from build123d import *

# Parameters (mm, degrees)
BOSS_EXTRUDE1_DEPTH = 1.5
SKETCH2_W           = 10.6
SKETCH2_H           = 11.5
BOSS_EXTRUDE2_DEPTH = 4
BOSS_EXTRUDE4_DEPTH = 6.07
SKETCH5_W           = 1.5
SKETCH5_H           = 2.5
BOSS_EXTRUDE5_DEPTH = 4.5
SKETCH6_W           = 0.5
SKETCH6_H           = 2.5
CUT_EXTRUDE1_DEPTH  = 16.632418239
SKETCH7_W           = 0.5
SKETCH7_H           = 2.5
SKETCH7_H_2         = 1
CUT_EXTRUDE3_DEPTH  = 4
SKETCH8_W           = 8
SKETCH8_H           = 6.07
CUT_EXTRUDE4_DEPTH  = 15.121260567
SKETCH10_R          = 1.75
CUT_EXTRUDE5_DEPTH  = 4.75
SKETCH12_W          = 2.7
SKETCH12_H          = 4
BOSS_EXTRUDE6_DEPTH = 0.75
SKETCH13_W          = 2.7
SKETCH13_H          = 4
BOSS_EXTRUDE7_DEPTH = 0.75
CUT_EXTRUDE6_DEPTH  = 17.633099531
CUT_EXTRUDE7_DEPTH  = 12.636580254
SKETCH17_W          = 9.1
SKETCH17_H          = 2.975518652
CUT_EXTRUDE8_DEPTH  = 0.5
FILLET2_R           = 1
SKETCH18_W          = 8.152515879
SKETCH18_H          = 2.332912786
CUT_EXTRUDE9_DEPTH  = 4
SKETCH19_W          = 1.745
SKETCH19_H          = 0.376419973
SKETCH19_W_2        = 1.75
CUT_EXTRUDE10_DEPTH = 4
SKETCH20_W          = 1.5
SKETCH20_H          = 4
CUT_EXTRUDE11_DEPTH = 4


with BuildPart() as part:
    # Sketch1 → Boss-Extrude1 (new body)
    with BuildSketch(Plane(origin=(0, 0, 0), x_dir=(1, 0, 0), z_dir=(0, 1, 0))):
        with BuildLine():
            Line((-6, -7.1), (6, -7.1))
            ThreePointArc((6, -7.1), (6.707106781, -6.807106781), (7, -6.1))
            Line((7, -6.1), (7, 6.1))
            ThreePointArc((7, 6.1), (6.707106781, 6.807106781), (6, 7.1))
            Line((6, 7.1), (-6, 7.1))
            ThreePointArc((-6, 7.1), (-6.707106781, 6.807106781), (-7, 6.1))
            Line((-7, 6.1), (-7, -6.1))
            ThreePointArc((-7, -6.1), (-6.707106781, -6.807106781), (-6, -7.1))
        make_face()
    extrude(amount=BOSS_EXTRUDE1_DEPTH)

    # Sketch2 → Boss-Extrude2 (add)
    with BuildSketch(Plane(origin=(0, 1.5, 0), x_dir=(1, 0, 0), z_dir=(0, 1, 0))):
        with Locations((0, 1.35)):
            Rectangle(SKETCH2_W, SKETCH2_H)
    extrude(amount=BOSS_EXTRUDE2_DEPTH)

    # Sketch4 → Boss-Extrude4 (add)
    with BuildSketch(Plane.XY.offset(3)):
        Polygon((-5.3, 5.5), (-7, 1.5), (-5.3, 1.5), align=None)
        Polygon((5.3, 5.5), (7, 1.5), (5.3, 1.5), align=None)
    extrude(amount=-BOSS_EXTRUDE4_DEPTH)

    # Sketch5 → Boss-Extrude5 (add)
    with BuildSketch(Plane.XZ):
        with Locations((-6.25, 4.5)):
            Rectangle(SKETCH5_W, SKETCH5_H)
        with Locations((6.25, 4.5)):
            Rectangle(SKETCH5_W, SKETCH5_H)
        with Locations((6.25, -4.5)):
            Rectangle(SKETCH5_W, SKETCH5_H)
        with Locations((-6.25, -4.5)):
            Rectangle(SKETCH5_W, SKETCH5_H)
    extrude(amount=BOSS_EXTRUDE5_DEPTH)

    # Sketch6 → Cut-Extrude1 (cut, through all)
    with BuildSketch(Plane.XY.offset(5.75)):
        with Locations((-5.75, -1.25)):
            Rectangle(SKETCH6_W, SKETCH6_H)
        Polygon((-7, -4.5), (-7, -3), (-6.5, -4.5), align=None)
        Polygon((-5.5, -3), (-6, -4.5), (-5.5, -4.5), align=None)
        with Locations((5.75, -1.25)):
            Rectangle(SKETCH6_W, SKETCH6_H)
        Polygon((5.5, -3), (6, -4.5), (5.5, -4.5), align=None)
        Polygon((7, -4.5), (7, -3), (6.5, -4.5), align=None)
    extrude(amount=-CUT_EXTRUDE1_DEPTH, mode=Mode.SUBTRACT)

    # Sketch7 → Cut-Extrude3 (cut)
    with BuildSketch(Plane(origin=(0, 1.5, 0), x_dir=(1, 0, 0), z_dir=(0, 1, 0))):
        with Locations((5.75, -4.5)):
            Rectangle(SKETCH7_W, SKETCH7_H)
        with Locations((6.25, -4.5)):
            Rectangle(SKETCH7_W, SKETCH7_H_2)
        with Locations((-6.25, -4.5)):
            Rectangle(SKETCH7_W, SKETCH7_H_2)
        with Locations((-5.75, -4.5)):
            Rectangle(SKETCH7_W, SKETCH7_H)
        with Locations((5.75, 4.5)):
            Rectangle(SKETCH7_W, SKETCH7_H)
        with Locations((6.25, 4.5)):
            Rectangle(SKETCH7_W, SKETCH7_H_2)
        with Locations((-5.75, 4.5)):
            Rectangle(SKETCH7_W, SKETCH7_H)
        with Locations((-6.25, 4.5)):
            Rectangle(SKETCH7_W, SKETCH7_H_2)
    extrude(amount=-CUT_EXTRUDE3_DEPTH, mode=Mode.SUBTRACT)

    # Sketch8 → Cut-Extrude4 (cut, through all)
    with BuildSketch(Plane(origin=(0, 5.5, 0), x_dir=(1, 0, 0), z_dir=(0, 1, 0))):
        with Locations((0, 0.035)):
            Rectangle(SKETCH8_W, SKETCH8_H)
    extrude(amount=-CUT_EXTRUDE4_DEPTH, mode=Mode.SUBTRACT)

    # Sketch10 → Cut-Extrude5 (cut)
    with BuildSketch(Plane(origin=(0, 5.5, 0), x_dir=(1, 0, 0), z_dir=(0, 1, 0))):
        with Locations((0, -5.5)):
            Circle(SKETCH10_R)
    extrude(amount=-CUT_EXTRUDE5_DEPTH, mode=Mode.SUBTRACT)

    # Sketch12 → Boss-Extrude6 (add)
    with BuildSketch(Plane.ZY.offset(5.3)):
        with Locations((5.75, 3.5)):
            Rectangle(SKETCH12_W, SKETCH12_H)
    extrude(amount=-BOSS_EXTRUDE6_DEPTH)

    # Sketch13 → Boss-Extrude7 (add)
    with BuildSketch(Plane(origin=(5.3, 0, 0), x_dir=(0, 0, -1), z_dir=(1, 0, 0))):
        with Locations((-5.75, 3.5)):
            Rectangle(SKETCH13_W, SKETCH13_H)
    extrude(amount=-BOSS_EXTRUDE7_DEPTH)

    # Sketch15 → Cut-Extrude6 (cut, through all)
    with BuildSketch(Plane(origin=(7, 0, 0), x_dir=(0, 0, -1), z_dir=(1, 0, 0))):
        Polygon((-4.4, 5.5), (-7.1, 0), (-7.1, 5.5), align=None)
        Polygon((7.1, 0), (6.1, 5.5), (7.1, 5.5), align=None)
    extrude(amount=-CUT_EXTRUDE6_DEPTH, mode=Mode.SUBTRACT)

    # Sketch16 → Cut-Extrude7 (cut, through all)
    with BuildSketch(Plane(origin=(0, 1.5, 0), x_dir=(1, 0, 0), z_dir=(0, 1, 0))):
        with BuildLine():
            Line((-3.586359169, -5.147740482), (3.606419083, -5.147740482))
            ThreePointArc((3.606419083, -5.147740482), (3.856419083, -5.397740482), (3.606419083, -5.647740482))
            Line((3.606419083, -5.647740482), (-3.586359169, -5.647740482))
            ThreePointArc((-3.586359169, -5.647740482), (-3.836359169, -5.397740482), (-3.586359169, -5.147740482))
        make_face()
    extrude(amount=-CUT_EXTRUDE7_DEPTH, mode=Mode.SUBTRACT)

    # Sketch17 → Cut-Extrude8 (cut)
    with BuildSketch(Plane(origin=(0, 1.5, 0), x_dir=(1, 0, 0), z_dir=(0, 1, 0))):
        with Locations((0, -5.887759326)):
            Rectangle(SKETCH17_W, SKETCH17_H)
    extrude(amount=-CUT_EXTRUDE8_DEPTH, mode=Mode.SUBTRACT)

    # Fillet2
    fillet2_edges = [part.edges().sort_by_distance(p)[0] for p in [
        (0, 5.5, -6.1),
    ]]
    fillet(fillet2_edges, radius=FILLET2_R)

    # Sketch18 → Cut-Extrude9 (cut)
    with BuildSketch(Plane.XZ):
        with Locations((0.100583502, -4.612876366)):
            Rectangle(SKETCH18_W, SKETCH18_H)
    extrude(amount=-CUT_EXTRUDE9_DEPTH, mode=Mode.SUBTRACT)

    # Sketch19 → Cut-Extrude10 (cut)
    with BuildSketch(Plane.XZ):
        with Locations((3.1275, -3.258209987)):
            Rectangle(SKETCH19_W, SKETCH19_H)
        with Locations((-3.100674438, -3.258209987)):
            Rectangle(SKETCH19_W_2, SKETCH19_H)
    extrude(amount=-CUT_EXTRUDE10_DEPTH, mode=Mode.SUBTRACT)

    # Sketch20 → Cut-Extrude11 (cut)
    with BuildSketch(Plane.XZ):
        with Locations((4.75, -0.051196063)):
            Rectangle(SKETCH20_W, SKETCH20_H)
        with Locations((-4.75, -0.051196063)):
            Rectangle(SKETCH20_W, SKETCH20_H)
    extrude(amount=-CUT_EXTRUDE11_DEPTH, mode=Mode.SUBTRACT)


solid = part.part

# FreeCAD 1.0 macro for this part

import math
import FreeCAD as App
import Part
import Sketcher
from FreeCAD import Vector
Q = App.Units.Quantity


def edges_at(feature, points):
    """Names of the edges that pass closest to the given points."""
    edges = feature.Shape.Edges
    near = lambda p: min(range(len(edges)), key=lambda i: edges[i].distToShape(Part.Vertex(*p))[0])
    return sorted({f"Edge{near(p) + 1}" for p in points})

doc = App.newDocument("Part")
params = doc.addObject("Spreadsheet::Sheet", "Params")
for row, (alias, value) in enumerate([
    ("sketch1_radius", "1 mm"),
    ("sketch1_width", "12 mm"),
    ("sketch1_height", "12.2 mm"),
    ("pad1_length", "1.5 mm"),
    ("sketch2_width", "10.6 mm"),
    ("sketch2_height", "11.5 mm"),
    ("pad2_length", "4 mm"),
    ("sketch3_height", "4 mm"),
    ("sketch3_width", "1.7 mm"),
    ("pad3_length", "6.07 mm"),
    ("sketch4_width", "1.5 mm"),
    ("sketch4_height", "2.5 mm"),
    ("pad4_length", "4.5 mm"),
    ("sketch5_width", "0.5 mm"),
    ("sketch5_height", "2.5 mm"),
    ("sketch5_height2", "1.5 mm"),
    ("sketch6_height", "1 mm"),
    ("sketch6_width", "0.5 mm"),
    ("sketch6_height2", "2.5 mm"),
    ("pocket2_length", "4 mm"),
    ("sketch7_width", "8 mm"),
    ("sketch7_height", "6.07 mm"),
    ("sketch8_diameter", "3.5 mm"),
    ("pocket4_length", "4.75 mm"),
    ("sketch9_width", "4 mm"),
    ("sketch9_height", "2.7 mm"),
    ("pad5_length", "0.75 mm"),
    ("sketch10_width", "4 mm"),
    ("sketch10_height", "2.7 mm"),
    ("pad6_length", "0.75 mm"),
    ("sketch11_height", "1 mm"),
    ("sketch11_width", "5.5 mm"),
    ("sketch11_height2", "2.7 mm"),
    ("sketch12_radius", "0.25 mm"),
    ("sketch13_width", "9.1 mm"),
    ("pocket7_length", "0.5 mm"),
    ("fillet_radius", "1 mm"),
    ("pocket8_length", "4 mm"),
    ("sketch15_width", "1.75 mm"),
    ("pocket9_length", "4 mm"),
    ("sketch16_height", "4 mm"),
    ("sketch16_width", "1.5 mm"),
    ("pocket10_length", "4 mm"),
], start=1):
    params.set(f"A{row}", alias)
    params.set(f"B{row}", "=" + value)
    params.setAlias(f"B{row}", alias)

body = doc.addObject("PartDesign::Body", "Body")

sketch1 = body.newObject("Sketcher::SketchObject", "Sketch")
sketch1.AttachmentSupport = (doc.getObject("XZ_Plane"), [""])
sketch1.MapMode = "FlatFace"
sketch1.addGeometry([
    Part.LineSegment(Vector(-6, 7.1, 0), Vector(6, 7.1, 0)),
    Part.ArcOfCircle(Part.Circle(Vector(6, 6.1, 0), Vector(0, 0, 1), 1), math.radians(0), math.radians(90)),
    Part.LineSegment(Vector(7, 6.1, 0), Vector(7, -6.1, 0)),
    Part.ArcOfCircle(Part.Circle(Vector(6, -6.1, 0), Vector(0, 0, 1), 1), math.radians(-90), math.radians(0)),
    Part.LineSegment(Vector(6, -7.1, 0), Vector(-6, -7.1, 0)),
    Part.ArcOfCircle(Part.Circle(Vector(-6, -6.1, 0), Vector(0, 0, 1), 1), math.radians(-180), math.radians(-90)),
    Part.LineSegment(Vector(-7, -6.1, 0), Vector(-7, 6.1, 0)),
    Part.ArcOfCircle(Part.Circle(Vector(-6, 6.1, 0), Vector(0, 0, 1), 1), math.radians(90), math.radians(180)),
], False)
sketch1.addConstraint([
    Sketcher.Constraint("Tangent", 0, 2, 1, 2),
    Sketcher.Constraint("Tangent", 1, 1, 2, 1),
    Sketcher.Constraint("Tangent", 2, 2, 3, 2),
    Sketcher.Constraint("Tangent", 3, 1, 4, 1),
    Sketcher.Constraint("Tangent", 4, 2, 5, 2),
    Sketcher.Constraint("Tangent", 5, 1, 6, 1),
    Sketcher.Constraint("Tangent", 6, 2, 7, 2),
    Sketcher.Constraint("Tangent", 7, 1, 0, 1),
    Sketcher.Constraint("Horizontal", 0),
    Sketcher.Constraint("Vertical", 2),
    Sketcher.Constraint("Horizontal", 4),
    Sketcher.Constraint("Vertical", 6),
    Sketcher.Constraint("Equal", 1, 3),
    Sketcher.Constraint("Equal", 3, 5),
    Sketcher.Constraint("Equal", 5, 7),
    Sketcher.Constraint("Symmetric", 1, 3, 5, 3, -1, 1),
    Sketcher.Constraint("Radius", 1, Q("1 mm")),
    Sketcher.Constraint("DistanceX", 0, 1, 0, 2, Q("12 mm")),
    Sketcher.Constraint("DistanceY", 2, 2, 2, 1, Q("12.2 mm")),
])
sketch1.setExpression("Constraints[16]", "Params.sketch1_radius")
sketch1.setExpression("Constraints[17]", "Params.sketch1_width")
sketch1.setExpression("Constraints[18]", "Params.sketch1_height")
pad1 = body.newObject("PartDesign::Pad", "Pad")
pad1.Profile = sketch1
pad1.setExpression("Length", "Params.pad1_length")
pad1.Reversed = True

sketch2 = body.newObject("Sketcher::SketchObject", "Sketch001")
sketch2.AttachmentSupport = (doc.getObject("XZ_Plane"), [""])
sketch2.MapMode = "FlatFace"
sketch2.AttachmentOffset = App.Placement(Vector(0, 0, -1.5), App.Rotation())
sketch2.addGeometry([
    Part.LineSegment(Vector(-5, -7, 0), Vector(-5, 4, 0)),
    Part.LineSegment(Vector(-5, 4, 0), Vector(5, 4, 0)),
    Part.LineSegment(Vector(5, 4, 0), Vector(5, -7, 0)),
    Part.LineSegment(Vector(5, -7, 0), Vector(-5, -7, 0)),
], False)
sketch2.addConstraint([
    Sketcher.Constraint("Coincident", 0, 2, 1, 1),
    Sketcher.Constraint("Coincident", 1, 2, 2, 1),
    Sketcher.Constraint("Coincident", 2, 2, 3, 1),
    Sketcher.Constraint("Coincident", 3, 2, 0, 1),
    Sketcher.Constraint("Vertical", 0),
    Sketcher.Constraint("Horizontal", 1),
    Sketcher.Constraint("Vertical", 2),
    Sketcher.Constraint("Horizontal", 3),
    Sketcher.Constraint("DistanceX", 1, 1, 1, 2, Q("10.6 mm")),
    Sketcher.Constraint("DistanceY", 0, 1, 0, 2, Q("11.5 mm")),
    Sketcher.Constraint("DistanceX", 0, 2, -1, 1, Q("5.3 mm")),
    Sketcher.Constraint("DistanceY", -1, 1, 0, 2, Q("4.4 mm")),
])
sketch2.setExpression("Constraints[8]", "Params.sketch2_width")
sketch2.setExpression("Constraints[9]", "Params.sketch2_height")
pad2 = body.newObject("PartDesign::Pad", "Pad001")
pad2.Profile = sketch2
pad2.setExpression("Length", "Params.pad2_length")
pad2.Reversed = True

sketch3 = body.newObject("Sketcher::SketchObject", "Sketch002")
sketch3.AttachmentSupport = (doc.getObject("XY_Plane"), [""])
sketch3.MapMode = "FlatFace"
sketch3.AttachmentOffset = App.Placement(Vector(0, 0, 3), App.Rotation())
sketch3.addGeometry([
    Part.LineSegment(Vector(-5.3, 5.5, 0), Vector(-7, 1.5, 0)),
    Part.LineSegment(Vector(-7, 1.5, 0), Vector(-5.3, 1.5, 0)),
    Part.LineSegment(Vector(-5.3, 1.5, 0), Vector(-5.3, 5.5, 0)),
    Part.LineSegment(Vector(7, 1.5, 0), Vector(5.3, 5.5, 0)),
    Part.LineSegment(Vector(5.3, 5.5, 0), Vector(5.3, 1.5, 0)),
    Part.LineSegment(Vector(5.3, 1.5, 0), Vector(7, 1.5, 0)),
], False)
sketch3.addConstraint([
    Sketcher.Constraint("Coincident", 0, 2, 1, 1),
    Sketcher.Constraint("Coincident", 1, 2, 2, 1),
    Sketcher.Constraint("Coincident", 2, 2, 0, 1),
    Sketcher.Constraint("Coincident", 3, 2, 4, 1),
    Sketcher.Constraint("Coincident", 4, 2, 5, 1),
    Sketcher.Constraint("Coincident", 5, 2, 3, 1),
    Sketcher.Constraint("Horizontal", 1),
    Sketcher.Constraint("Vertical", 2),
    Sketcher.Constraint("Vertical", 4),
    Sketcher.Constraint("Horizontal", 5),
    Sketcher.Constraint("Symmetric", 2, 2, 3, 2, -2),
    Sketcher.Constraint("Symmetric", 0, 2, 5, 2, -2),
    Sketcher.Constraint("DistanceY", 2, 1, 2, 2, Q("4 mm")),
    Sketcher.Constraint("DistanceX", 1, 1, 1, 2, Q("1.7 mm")),
    Sketcher.Constraint("DistanceX", 0, 2, -1, 1, Q("7 mm")),
    Sketcher.Constraint("DistanceY", -1, 1, 0, 2, Q("1.5 mm")),
])
sketch3.setExpression("Constraints[12]", "Params.sketch3_height")
sketch3.setExpression("Constraints[13]", "Params.sketch3_width")
pad3 = body.newObject("PartDesign::Pad", "Pad002")
pad3.Profile = sketch3
pad3.setExpression("Length", "Params.pad3_length")
pad3.Reversed = True

sketch4 = body.newObject("Sketcher::SketchObject", "Sketch003")
sketch4.AttachmentSupport = (doc.getObject("XZ_Plane"), [""])
sketch4.MapMode = "FlatFace"
sketch4.addGeometry([
    Part.LineSegment(Vector(-7, 5.8, 0), Vector(-7, 3.2, 0)),
    Part.LineSegment(Vector(-7, 3.2, 0), Vector(-5.5, 3.2, 0)),
    Part.LineSegment(Vector(-5.5, 3.2, 0), Vector(-5.5, 5.8, 0)),
    Part.LineSegment(Vector(-5.5, 5.8, 0), Vector(-7, 5.8, 0)),
    Part.LineSegment(Vector(5.5, 5.8, 0), Vector(5.5, 3.2, 0)),
    Part.LineSegment(Vector(5.5, 3.2, 0), Vector(7, 3.2, 0)),
    Part.LineSegment(Vector(7, 3.2, 0), Vector(7, 5.8, 0)),
    Part.LineSegment(Vector(7, 5.8, 0), Vector(5.5, 5.8, 0)),
    Part.LineSegment(Vector(5.5, -3.2, 0), Vector(5.5, -5.8, 0)),
    Part.LineSegment(Vector(5.5, -5.8, 0), Vector(7, -5.8, 0)),
    Part.LineSegment(Vector(7, -5.8, 0), Vector(7, -3.2, 0)),
    Part.LineSegment(Vector(7, -3.2, 0), Vector(5.5, -3.2, 0)),
    Part.LineSegment(Vector(-7, -3.2, 0), Vector(-7, -5.8, 0)),
    Part.LineSegment(Vector(-7, -5.8, 0), Vector(-5.5, -5.8, 0)),
    Part.LineSegment(Vector(-5.5, -5.8, 0), Vector(-5.5, -3.2, 0)),
    Part.LineSegment(Vector(-5.5, -3.2, 0), Vector(-7, -3.2, 0)),
], False)
sketch4.addConstraint([
    Sketcher.Constraint("Coincident", 0, 2, 1, 1),
    Sketcher.Constraint("Coincident", 1, 2, 2, 1),
    Sketcher.Constraint("Coincident", 2, 2, 3, 1),
    Sketcher.Constraint("Coincident", 3, 2, 0, 1),
    Sketcher.Constraint("Coincident", 4, 2, 5, 1),
    Sketcher.Constraint("Coincident", 5, 2, 6, 1),
    Sketcher.Constraint("Coincident", 6, 2, 7, 1),
    Sketcher.Constraint("Coincident", 7, 2, 4, 1),
    Sketcher.Constraint("Coincident", 8, 2, 9, 1),
    Sketcher.Constraint("Coincident", 9, 2, 10, 1),
    Sketcher.Constraint("Coincident", 10, 2, 11, 1),
    Sketcher.Constraint("Coincident", 11, 2, 8, 1),
    Sketcher.Constraint("Coincident", 12, 2, 13, 1),
    Sketcher.Constraint("Coincident", 13, 2, 14, 1),
    Sketcher.Constraint("Coincident", 14, 2, 15, 1),
    Sketcher.Constraint("Coincident", 15, 2, 12, 1),
    Sketcher.Constraint("Vertical", 0),
    Sketcher.Constraint("Horizontal", 1),
    Sketcher.Constraint("Vertical", 2),
    Sketcher.Constraint("Horizontal", 3),
    Sketcher.Constraint("Vertical", 4),
    Sketcher.Constraint("Horizontal", 5),
    Sketcher.Constraint("Vertical", 6),
    Sketcher.Constraint("Horizontal", 7),
    Sketcher.Constraint("Vertical", 8),
    Sketcher.Constraint("Horizontal", 9),
    Sketcher.Constraint("Vertical", 10),
    Sketcher.Constraint("Horizontal", 11),
    Sketcher.Constraint("Vertical", 12),
    Sketcher.Constraint("Horizontal", 13),
    Sketcher.Constraint("Vertical", 14),
    Sketcher.Constraint("Horizontal", 15),
    Sketcher.Constraint("Symmetric", 2, 2, 8, 2, -1, 1),
    Sketcher.Constraint("Symmetric", 0, 2, 10, 2, -1, 1),
    Sketcher.Constraint("Symmetric", 6, 2, 12, 2, -1, 1),
    Sketcher.Constraint("Symmetric", 4, 2, 14, 2, -1, 1),
    Sketcher.Constraint("Symmetric", 1, 2, 4, 2, -2),
    Sketcher.Constraint("Symmetric", 3, 2, 6, 2, -2),
    Sketcher.Constraint("DistanceX", 1, 1, 1, 2, Q("1.5 mm")),
    Sketcher.Constraint("DistanceY", 0, 2, 0, 1, Q("2.5 mm")),
    Sketcher.Constraint("DistanceX", 0, 2, -1, 1, Q("7 mm")),
    Sketcher.Constraint("DistanceY", 8, 2, 4, 2, Q("9 mm")),
])
sketch4.setExpression("Constraints[38]", "Params.sketch4_width")
sketch4.setExpression("Constraints[39]", "Params.sketch4_height")
pad4 = body.newObject("PartDesign::Pad", "Pad003")
pad4.Profile = sketch4
pad4.setExpression("Length", "Params.pad4_length")

sketch5 = body.newObject("Sketcher::SketchObject", "Sketch004")
sketch5.AttachmentSupport = (doc.getObject("XY_Plane"), [""])
sketch5.MapMode = "FlatFace"
sketch5.AttachmentOffset = App.Placement(Vector(0, 0, 5.75), App.Rotation())
sketch5.addGeometry([
    Part.LineSegment(Vector(-6, 0, 0), Vector(-6, -2.5, 0)),
    Part.LineSegment(Vector(-6, -2.5, 0), Vector(-5.5, -2.5, 0)),
    Part.LineSegment(Vector(-5.5, -2.5, 0), Vector(-5.5, 0, 0)),
    Part.LineSegment(Vector(-5.5, 0, 0), Vector(-6, 0, 0)),
    Part.LineSegment(Vector(-7, -3, 0), Vector(-7, -4.5, 0)),
    Part.LineSegment(Vector(-7, -4.5, 0), Vector(-6.5, -4.5, 0)),
    Part.LineSegment(Vector(-6.5, -4.5, 0), Vector(-7, -3, 0)),
    Part.LineSegment(Vector(-5.5, -3, 0), Vector(-6, -4.5, 0)),
    Part.LineSegment(Vector(-6, -4.5, 0), Vector(-5.5, -4.5, 0)),
    Part.LineSegment(Vector(-5.5, -4.5, 0), Vector(-5.5, -3, 0)),
    Part.LineSegment(Vector(5.5, 0, 0), Vector(5.5, -2.5, 0)),
    Part.LineSegment(Vector(5.5, -2.5, 0), Vector(6, -2.5, 0)),
    Part.LineSegment(Vector(6, -2.5, 0), Vector(6, 0, 0)),
    Part.LineSegment(Vector(6, 0, 0), Vector(5.5, 0, 0)),
    Part.LineSegment(Vector(6, -4.5, 0), Vector(5.5, -3, 0)),
    Part.LineSegment(Vector(5.5, -3, 0), Vector(5.5, -4.5, 0)),
    Part.LineSegment(Vector(5.5, -4.5, 0), Vector(6, -4.5, 0)),
    Part.LineSegment(Vector(7, -4.5, 0), Vector(7, -3, 0)),
    Part.LineSegment(Vector(7, -3, 0), Vector(6.5, -4.5, 0)),
    Part.LineSegment(Vector(6.5, -4.5, 0), Vector(7, -4.5, 0)),
], False)
sketch5.addConstraint([
    Sketcher.Constraint("Coincident", 0, 2, 1, 1),
    Sketcher.Constraint("Coincident", 1, 2, 2, 1),
    Sketcher.Constraint("Coincident", 2, 2, 3, 1),
    Sketcher.Constraint("Coincident", 3, 2, 0, 1),
    Sketcher.Constraint("Coincident", 4, 2, 5, 1),
    Sketcher.Constraint("Coincident", 5, 2, 6, 1),
    Sketcher.Constraint("Coincident", 6, 2, 4, 1),
    Sketcher.Constraint("Coincident", 7, 2, 8, 1),
    Sketcher.Constraint("Coincident", 8, 2, 9, 1),
    Sketcher.Constraint("Coincident", 9, 2, 7, 1),
    Sketcher.Constraint("Coincident", 10, 2, 11, 1),
    Sketcher.Constraint("Coincident", 11, 2, 12, 1),
    Sketcher.Constraint("Coincident", 12, 2, 13, 1),
    Sketcher.Constraint("Coincident", 13, 2, 10, 1),
    Sketcher.Constraint("Coincident", 14, 2, 15, 1),
    Sketcher.Constraint("Coincident", 15, 2, 16, 1),
    Sketcher.Constraint("Coincident", 16, 2, 14, 1),
    Sketcher.Constraint("Coincident", 17, 2, 18, 1),
    Sketcher.Constraint("Coincident", 18, 2, 19, 1),
    Sketcher.Constraint("Coincident", 19, 2, 17, 1),
    Sketcher.Constraint("Vertical", 0),
    Sketcher.Constraint("Horizontal", 1),
    Sketcher.Constraint("Vertical", 2),
    Sketcher.Constraint("Horizontal", 3),
    Sketcher.Constraint("Vertical", 4),
    Sketcher.Constraint("Horizontal", 5),
    Sketcher.Constraint("Horizontal", 8),
    Sketcher.Constraint("Vertical", 9),
    Sketcher.Constraint("Vertical", 10),
    Sketcher.Constraint("Horizontal", 11),
    Sketcher.Constraint("Vertical", 12),
    Sketcher.Constraint("Horizontal", 13),
    Sketcher.Constraint("Vertical", 15),
    Sketcher.Constraint("Horizontal", 16),
    Sketcher.Constraint("Vertical", 17),
    Sketcher.Constraint("Horizontal", 19),
    Sketcher.Constraint("Symmetric", 3, 2, 12, 2, -1, 1),
    Sketcher.Constraint("Symmetric", 1, 2, 10, 2, -2),
    Sketcher.Constraint("Symmetric", 9, 2, 14, 2, -2),
    Sketcher.Constraint("Symmetric", 7, 2, 16, 2, -2),
    Sketcher.Constraint("Symmetric", 6, 2, 17, 2, -2),
    Sketcher.Constraint("Symmetric", 5, 2, 18, 2, -2),
    Sketcher.Constraint("PointOnObject", 2, 2, -1),
    Sketcher.Constraint("Parallel", 6, 14),
    Sketcher.Constraint("Horizontal", 5, 2, 7, 2),
    Sketcher.Constraint("Horizontal", 6, 2, 9, 2),
    Sketcher.Constraint("Vertical", 3, 2, 7, 2),
    Sketcher.Constraint("Vertical", 2, 2, 8, 2),
    Sketcher.Constraint("DistanceX", 1, 1, 1, 2, Q("0.5 mm")),
    Sketcher.Constraint("DistanceY", 0, 2, 0, 1, Q("2.5 mm")),
    Sketcher.Constraint("DistanceY", 4, 2, 4, 1, Q("1.5 mm")),
    Sketcher.Constraint("DistanceX", 0, 2, -1, 1, Q("6 mm")),
    Sketcher.Constraint("DistanceX", 4, 2, -1, 1, Q("7 mm")),
    Sketcher.Constraint("DistanceY", 6, 2, -1, 1, Q("3 mm")),
])
sketch5.setExpression("Constraints[48]", "Params.sketch5_width")
sketch5.setExpression("Constraints[49]", "Params.sketch5_height")
sketch5.setExpression("Constraints[50]", "Params.sketch5_height2")
pocket1 = body.newObject("PartDesign::Pocket", "Pocket")
pocket1.Profile = sketch5
pocket1.Type = "ThroughAll"

sketch6 = body.newObject("Sketcher::SketchObject", "Sketch005")
sketch6.AttachmentSupport = (doc.getObject("XZ_Plane"), [""])
sketch6.MapMode = "FlatFace"
sketch6.AttachmentOffset = App.Placement(Vector(0, 0, -1.5), App.Rotation())
sketch6.addGeometry([
    Part.LineSegment(Vector(5.5, 3.2, 0), Vector(5.5, 5.8, 0)),
    Part.LineSegment(Vector(5.5, 5.8, 0), Vector(6, 5.8, 0)),
    Part.LineSegment(Vector(6, 5.8, 0), Vector(6, 5, 0)),
    Part.LineSegment(Vector(6, 5, 0), Vector(6.5, 5, 0)),
    Part.LineSegment(Vector(6.5, 5, 0), Vector(6.5, 4, 0)),
    Part.LineSegment(Vector(6.5, 4, 0), Vector(6, 4, 0)),
    Part.LineSegment(Vector(6, 4, 0), Vector(6, 3.2, 0)),
    Part.LineSegment(Vector(6, 3.2, 0), Vector(5.5, 3.2, 0)),
    Part.LineSegment(Vector(-6.5, 4, 0), Vector(-6.5, 5, 0)),
    Part.LineSegment(Vector(-6.5, 5, 0), Vector(-6, 5, 0)),
    Part.LineSegment(Vector(-6, 5, 0), Vector(-6, 5.8, 0)),
    Part.LineSegment(Vector(-6, 5.8, 0), Vector(-5.5, 5.8, 0)),
    Part.LineSegment(Vector(-5.5, 5.8, 0), Vector(-5.5, 3.2, 0)),
    Part.LineSegment(Vector(-5.5, 3.2, 0), Vector(-6, 3.2, 0)),
    Part.LineSegment(Vector(-6, 3.2, 0), Vector(-6, 4, 0)),
    Part.LineSegment(Vector(-6, 4, 0), Vector(-6.5, 4, 0)),
    Part.LineSegment(Vector(5.5, -5.8, 0), Vector(5.5, -3.2, 0)),
    Part.LineSegment(Vector(5.5, -3.2, 0), Vector(6, -3.2, 0)),
    Part.LineSegment(Vector(6, -3.2, 0), Vector(6, -4, 0)),
    Part.LineSegment(Vector(6, -4, 0), Vector(6.5, -4, 0)),
    Part.LineSegment(Vector(6.5, -4, 0), Vector(6.5, -5, 0)),
    Part.LineSegment(Vector(6.5, -5, 0), Vector(6, -5, 0)),
    Part.LineSegment(Vector(6, -5, 0), Vector(6, -5.8, 0)),
    Part.LineSegment(Vector(6, -5.8, 0), Vector(5.5, -5.8, 0)),
    Part.LineSegment(Vector(-6, -4, 0), Vector(-6, -3.2, 0)),
    Part.LineSegment(Vector(-6, -3.2, 0), Vector(-5.5, -3.2, 0)),
    Part.LineSegment(Vector(-5.5, -3.2, 0), Vector(-5.5, -5.8, 0)),
    Part.LineSegment(Vector(-5.5, -5.8, 0), Vector(-6, -5.8, 0)),
    Part.LineSegment(Vector(-6, -5.8, 0), Vector(-6, -5, 0)),
    Part.LineSegment(Vector(-6, -5, 0), Vector(-6.5, -5, 0)),
    Part.LineSegment(Vector(-6.5, -5, 0), Vector(-6.5, -4, 0)),
    Part.LineSegment(Vector(-6.5, -4, 0), Vector(-6, -4, 0)),
], False)
sketch6.addConstraint([
    Sketcher.Constraint("Coincident", 0, 2, 1, 1),
    Sketcher.Constraint("Coincident", 1, 2, 2, 1),
    Sketcher.Constraint("Coincident", 2, 2, 3, 1),
    Sketcher.Constraint("Coincident", 3, 2, 4, 1),
    Sketcher.Constraint("Coincident", 4, 2, 5, 1),
    Sketcher.Constraint("Coincident", 5, 2, 6, 1),
    Sketcher.Constraint("Coincident", 6, 2, 7, 1),
    Sketcher.Constraint("Coincident", 7, 2, 0, 1),
    Sketcher.Constraint("Coincident", 8, 2, 9, 1),
    Sketcher.Constraint("Coincident", 9, 2, 10, 1),
    Sketcher.Constraint("Coincident", 10, 2, 11, 1),
    Sketcher.Constraint("Coincident", 11, 2, 12, 1),
    Sketcher.Constraint("Coincident", 12, 2, 13, 1),
    Sketcher.Constraint("Coincident", 13, 2, 14, 1),
    Sketcher.Constraint("Coincident", 14, 2, 15, 1),
    Sketcher.Constraint("Coincident", 15, 2, 8, 1),
    Sketcher.Constraint("Coincident", 16, 2, 17, 1),
    Sketcher.Constraint("Coincident", 17, 2, 18, 1),
    Sketcher.Constraint("Coincident", 18, 2, 19, 1),
    Sketcher.Constraint("Coincident", 19, 2, 20, 1),
    Sketcher.Constraint("Coincident", 20, 2, 21, 1),
    Sketcher.Constraint("Coincident", 21, 2, 22, 1),
    Sketcher.Constraint("Coincident", 22, 2, 23, 1),
    Sketcher.Constraint("Coincident", 23, 2, 16, 1),
    Sketcher.Constraint("Coincident", 24, 2, 25, 1),
    Sketcher.Constraint("Coincident", 25, 2, 26, 1),
    Sketcher.Constraint("Coincident", 26, 2, 27, 1),
    Sketcher.Constraint("Coincident", 27, 2, 28, 1),
    Sketcher.Constraint("Coincident", 28, 2, 29, 1),
    Sketcher.Constraint("Coincident", 29, 2, 30, 1),
    Sketcher.Constraint("Coincident", 30, 2, 31, 1),
    Sketcher.Constraint("Coincident", 31, 2, 24, 1),
    Sketcher.Constraint("Vertical", 0),
    Sketcher.Constraint("Horizontal", 1),
    Sketcher.Constraint("Vertical", 2),
    Sketcher.Constraint("Horizontal", 3),
    Sketcher.Constraint("Vertical", 4),
    Sketcher.Constraint("Horizontal", 5),
    Sketcher.Constraint("Vertical", 6),
    Sketcher.Constraint("Horizontal", 7),
    Sketcher.Constraint("Vertical", 8),
    Sketcher.Constraint("Horizontal", 9),
    Sketcher.Constraint("Vertical", 10),
    Sketcher.Constraint("Horizontal", 11),
    Sketcher.Constraint("Vertical", 12),
    Sketcher.Constraint("Horizontal", 13),
    Sketcher.Constraint("Vertical", 14),
    Sketcher.Constraint("Horizontal", 15),
    Sketcher.Constraint("Vertical", 16),
    Sketcher.Constraint("Horizontal", 17),
    Sketcher.Constraint("Vertical", 18),
    Sketcher.Constraint("Horizontal", 19),
    Sketcher.Constraint("Vertical", 20),
    Sketcher.Constraint("Horizontal", 21),
    Sketcher.Constraint("Vertical", 22),
    Sketcher.Constraint("Horizontal", 23),
    Sketcher.Constraint("Vertical", 24),
    Sketcher.Constraint("Horizontal", 25),
    Sketcher.Constraint("Vertical", 26),
    Sketcher.Constraint("Horizontal", 27),
    Sketcher.Constraint("Vertical", 28),
    Sketcher.Constraint("Horizontal", 29),
    Sketcher.Constraint("Vertical", 30),
    Sketcher.Constraint("Horizontal", 31),
    Sketcher.Constraint("Symmetric", 12, 2, 16, 2, -1, 1),
    Sketcher.Constraint("Symmetric", 14, 2, 18, 2, -1, 1),
    Sketcher.Constraint("Symmetric", 8, 2, 20, 2, -1, 1),
    Sketcher.Constraint("Symmetric", 10, 2, 22, 2, -1, 1),
    Sketcher.Constraint("Symmetric", 6, 2, 24, 2, -1, 1),
    Sketcher.Constraint("Symmetric", 0, 2, 26, 2, -1, 1),
    Sketcher.Constraint("Symmetric", 2, 2, 28, 2, -1, 1),
    Sketcher.Constraint("Symmetric", 4, 2, 30, 2, -1, 1),
    Sketcher.Constraint("Symmetric", 3, 2, 8, 2, -2),
    Sketcher.Constraint("Symmetric", 1, 2, 10, 2, -2),
    Sketcher.Constraint("Symmetric", 7, 2, 12, 2, -2),
    Sketcher.Constraint("Symmetric", 5, 2, 14, 2, -2),
    Sketcher.Constraint("Vertical", 2, 2, 5, 2),
    Sketcher.Constraint("Equal", 1, 3),
    Sketcher.Constraint("Equal", 2, 6),
    Sketcher.Constraint("DistanceY", 4, 2, 4, 1, Q("1 mm")),
    Sketcher.Constraint("DistanceX", 1, 1, 1, 2, Q("0.5 mm")),
    Sketcher.Constraint("DistanceY", 0, 1, 0, 2, Q("2.5 mm")),
    Sketcher.Constraint("DistanceX", -1, 1, 1, 2, Q("6 mm")),
    Sketcher.Constraint("DistanceY", -1, 1, 2, 2, Q("5 mm")),
])
sketch6.setExpression("Constraints[79]", "Params.sketch6_height")
sketch6.setExpression("Constraints[80]", "Params.sketch6_width")
sketch6.setExpression("Constraints[81]", "Params.sketch6_height2")
pocket2 = body.newObject("PartDesign::Pocket", "Pocket001")
pocket2.Profile = sketch6
pocket2.setExpression("Length", "Params.pocket2_length")
pocket2.Reversed = True

sketch7 = body.newObject("Sketcher::SketchObject", "Sketch006")
sketch7.AttachmentSupport = (doc.getObject("XZ_Plane"), [""])
sketch7.MapMode = "FlatFace"
sketch7.AttachmentOffset = App.Placement(Vector(0, 0, -5.5), App.Rotation())
sketch7.addGeometry([
    Part.LineSegment(Vector(-4, -3, 0), Vector(-4, 3, 0)),
    Part.LineSegment(Vector(-4, 3, 0), Vector(4, 3, 0)),
    Part.LineSegment(Vector(4, 3, 0), Vector(4, -3, 0)),
    Part.LineSegment(Vector(4, -3, 0), Vector(-4, -3, 0)),
], False)
sketch7.addConstraint([
    Sketcher.Constraint("Coincident", 0, 2, 1, 1),
    Sketcher.Constraint("Coincident", 1, 2, 2, 1),
    Sketcher.Constraint("Coincident", 2, 2, 3, 1),
    Sketcher.Constraint("Coincident", 3, 2, 0, 1),
    Sketcher.Constraint("Vertical", 0),
    Sketcher.Constraint("Horizontal", 1),
    Sketcher.Constraint("Vertical", 2),
    Sketcher.Constraint("Horizontal", 3),
    Sketcher.Constraint("DistanceX", 1, 1, 1, 2, Q("8 mm")),
    Sketcher.Constraint("DistanceX", 0, 2, -1, 1, Q("4 mm")),
    Sketcher.Constraint("DistanceY", -1, 1, 0, 2, Q("3 mm")),
    Sketcher.Constraint("DistanceY", 0, 1, 0, 2, Q("6.07 mm")),
])
sketch7.setExpression("Constraints[8]", "Params.sketch7_width")
sketch7.setExpression("Constraints[11]", "Params.sketch7_height")
pocket3 = body.newObject("PartDesign::Pocket", "Pocket002")
pocket3.Profile = sketch7
pocket3.Type = "ThroughAll"
pocket3.Reversed = True

sketch8 = body.newObject("Sketcher::SketchObject", "Sketch007")
sketch8.AttachmentSupport = (doc.getObject("XZ_Plane"), [""])
sketch8.MapMode = "FlatFace"
sketch8.AttachmentOffset = App.Placement(Vector(0, 0, -5.5), App.Rotation())
sketch8.addGeometry(Part.Circle(Vector(0, 5.5, 0), Vector(0, 0, 1), 1.8), False)
sketch8.addConstraint([
    Sketcher.Constraint("PointOnObject", 0, 3, -2),
    Sketcher.Constraint("Diameter", 0, Q("3.5 mm")),
    Sketcher.Constraint("DistanceY", -1, 1, 0, 3, Q("5.5 mm")),
])
sketch8.setExpression("Constraints[1]", "Params.sketch8_diameter")
pocket4 = body.newObject("PartDesign::Pocket", "Pocket003")
pocket4.Profile = sketch8
pocket4.setExpression("Length", "Params.pocket4_length")
pocket4.Reversed = True

sketch9 = body.newObject("Sketcher::SketchObject", "Sketch008")
sketch9.AttachmentSupport = (doc.getObject("YZ_Plane"), [""])
sketch9.MapMode = "FlatFace"
sketch9.AttachmentOffset = App.Placement(Vector(0, 0, -5.3), App.Rotation())
sketch9.addGeometry([
    Part.LineSegment(Vector(5.5, 4.4, 0), Vector(1.5, 4.4, 0)),
    Part.LineSegment(Vector(1.5, 4.4, 0), Vector(1.5, 7.1, 0)),
    Part.LineSegment(Vector(1.5, 7.1, 0), Vector(5.5, 7.1, 0)),
    Part.LineSegment(Vector(5.5, 7.1, 0), Vector(5.5, 4.4, 0)),
], False)
sketch9.addConstraint([
    Sketcher.Constraint("Coincident", 0, 2, 1, 1),
    Sketcher.Constraint("Coincident", 1, 2, 2, 1),
    Sketcher.Constraint("Coincident", 2, 2, 3, 1),
    Sketcher.Constraint("Coincident", 3, 2, 0, 1),
    Sketcher.Constraint("Horizontal", 0),
    Sketcher.Constraint("Vertical", 1),
    Sketcher.Constraint("Horizontal", 2),
    Sketcher.Constraint("Vertical", 3),
    Sketcher.Constraint("DistanceX", 0, 2, 0, 1, Q("4 mm")),
    Sketcher.Constraint("DistanceY", 1, 1, 1, 2, Q("2.7 mm")),
    Sketcher.Constraint("DistanceX", -1, 1, 0, 2, Q("1.5 mm")),
    Sketcher.Constraint("DistanceY", -1, 1, 0, 2, Q("4.4 mm")),
])
sketch9.setExpression("Constraints[8]", "Params.sketch9_width")
sketch9.setExpression("Constraints[9]", "Params.sketch9_height")
pad5 = body.newObject("PartDesign::Pad", "Pad004")
pad5.Profile = sketch9
pad5.setExpression("Length", "Params.pad5_length")

sketch10 = body.newObject("Sketcher::SketchObject", "Sketch009")
sketch10.AttachmentSupport = (doc.getObject("YZ_Plane"), [""])
sketch10.MapMode = "FlatFace"
sketch10.AttachmentOffset = App.Placement(Vector(0, 0, 5.3), App.Rotation())
sketch10.addGeometry([
    Part.LineSegment(Vector(5.5, 7.1, 0), Vector(1.5, 7.1, 0)),
    Part.LineSegment(Vector(1.5, 7.1, 0), Vector(1.5, 4.4, 0)),
    Part.LineSegment(Vector(1.5, 4.4, 0), Vector(5.5, 4.4, 0)),
    Part.LineSegment(Vector(5.5, 4.4, 0), Vector(5.5, 7.1, 0)),
], False)
sketch10.addConstraint([
    Sketcher.Constraint("Coincident", 0, 2, 1, 1),
    Sketcher.Constraint("Coincident", 1, 2, 2, 1),
    Sketcher.Constraint("Coincident", 2, 2, 3, 1),
    Sketcher.Constraint("Coincident", 3, 2, 0, 1),
    Sketcher.Constraint("Horizontal", 0),
    Sketcher.Constraint("Vertical", 1),
    Sketcher.Constraint("Horizontal", 2),
    Sketcher.Constraint("Vertical", 3),
    Sketcher.Constraint("DistanceX", 0, 2, 0, 1, Q("4 mm")),
    Sketcher.Constraint("DistanceY", 1, 2, 1, 1, Q("2.7 mm")),
    Sketcher.Constraint("DistanceX", -1, 1, 0, 2, Q("1.5 mm")),
    Sketcher.Constraint("DistanceY", -1, 1, 0, 2, Q("7.1 mm")),
])
sketch10.setExpression("Constraints[8]", "Params.sketch10_width")
sketch10.setExpression("Constraints[9]", "Params.sketch10_height")
pad6 = body.newObject("PartDesign::Pad", "Pad005")
pad6.Profile = sketch10
pad6.setExpression("Length", "Params.pad6_length")
pad6.Reversed = True

sketch11 = body.newObject("Sketcher::SketchObject", "Sketch010")
sketch11.AttachmentSupport = (doc.getObject("YZ_Plane"), [""])
sketch11.MapMode = "FlatFace"
sketch11.AttachmentOffset = App.Placement(Vector(0, 0, 7), App.Rotation())
sketch11.addGeometry([
    Part.LineSegment(Vector(0, 7.1, 0), Vector(5.5, 4.4, 0)),
    Part.LineSegment(Vector(5.5, 4.4, 0), Vector(5.5, 7.1, 0)),
    Part.LineSegment(Vector(5.5, 7.1, 0), Vector(0, 7.1, 0)),
    Part.LineSegment(Vector(5.5, -6.1, 0), Vector(0, -7.1, 0)),
    Part.LineSegment(Vector(0, -7.1, 0), Vector(5.5, -7.1, 0)),
    Part.LineSegment(Vector(5.5, -7.1, 0), Vector(5.5, -6.1, 0)),
], False)
sketch11.addConstraint([
    Sketcher.Constraint("Coincident", 0, 2, 1, 1),
    Sketcher.Constraint("Coincident", 1, 2, 2, 1),
    Sketcher.Constraint("Coincident", 2, 2, 0, 1),
    Sketcher.Constraint("Coincident", 3, 2, 4, 1),
    Sketcher.Constraint("Coincident", 4, 2, 5, 1),
    Sketcher.Constraint("Coincident", 5, 2, 3, 1),
    Sketcher.Constraint("Vertical", 1),
    Sketcher.Constraint("Horizontal", 2),
    Sketcher.Constraint("Horizontal", 4),
    Sketcher.Constraint("Vertical", 5),
    Sketcher.Constraint("Symmetric", 2, 2, 3, 2, -1, 1),
    Sketcher.Constraint("PointOnObject", 2, 2, -2),
    Sketcher.Constraint("Vertical", 1, 2, 4, 2),
    Sketcher.Constraint("DistanceY", 5, 1, 5, 2, Q("1 mm")),
    Sketcher.Constraint("DistanceX", 2, 2, 2, 1, Q("5.5 mm")),
    Sketcher.Constraint("DistanceY", 1, 1, 1, 2, Q("2.7 mm")),
    Sketcher.Constraint("DistanceY", -1, 1, 0, 2, Q("4.4 mm")),
])
sketch11.setExpression("Constraints[13]", "Params.sketch11_height")
sketch11.setExpression("Constraints[14]", "Params.sketch11_width")
sketch11.setExpression("Constraints[15]", "Params.sketch11_height2")
pocket5 = body.newObject("PartDesign::Pocket", "Pocket004")
pocket5.Profile = sketch11
pocket5.Type = "ThroughAll"

sketch12 = body.newObject("Sketcher::SketchObject", "Sketch011")
sketch12.AttachmentSupport = (doc.getObject("XZ_Plane"), [""])
sketch12.MapMode = "FlatFace"
sketch12.AttachmentOffset = App.Placement(Vector(0, 0, -1.5), App.Rotation())
sketch12.addGeometry([
    Part.LineSegment(Vector(3.61, 5.15, 0), Vector(-3.59, 5.15, 0)),
    Part.ArcOfCircle(Part.Circle(Vector(-3.59, 5.4, 0), Vector(0, 0, 1), 0.25), math.radians(90), math.radians(270)),
    Part.LineSegment(Vector(-3.59, 5.65, 0), Vector(3.61, 5.65, 0)),
    Part.ArcOfCircle(Part.Circle(Vector(3.61, 5.4, 0), Vector(0, 0, 1), 0.25), math.radians(-90), math.radians(90)),
], False)
sketch12.addConstraint([
    Sketcher.Constraint("Tangent", 0, 2, 1, 2),
    Sketcher.Constraint("Tangent", 1, 1, 2, 1),
    Sketcher.Constraint("Tangent", 2, 2, 3, 2),
    Sketcher.Constraint("Tangent", 3, 1, 0, 1),
    Sketcher.Constraint("Horizontal", 0),
    Sketcher.Constraint("Horizontal", 2),
    Sketcher.Constraint("Radius", 1, Q("0.25 mm")),
    Sketcher.Constraint("DistanceX", 0, 2, 0, 1, Q("7.192778 mm")),
    Sketcher.Constraint("DistanceX", 1, 3, -1, 1, Q("3.586359 mm")),
    Sketcher.Constraint("DistanceY", -1, 1, 1, 3, Q("5.39774 mm")),
])
sketch12.setExpression("Constraints[6]", "Params.sketch12_radius")
pocket6 = body.newObject("PartDesign::Pocket", "Pocket005")
pocket6.Profile = sketch12
pocket6.Type = "ThroughAll"
pocket6.Reversed = True

sketch13 = body.newObject("Sketcher::SketchObject", "Sketch012")
sketch13.AttachmentSupport = (doc.getObject("XZ_Plane"), [""])
sketch13.MapMode = "FlatFace"
sketch13.AttachmentOffset = App.Placement(Vector(0, 0, -1.5), App.Rotation())
sketch13.addGeometry([
    Part.LineSegment(Vector(-4.5, 4.4, 0), Vector(-4.5, 7.4, 0)),
    Part.LineSegment(Vector(-4.5, 7.4, 0), Vector(4.5, 7.4, 0)),
    Part.LineSegment(Vector(4.5, 7.4, 0), Vector(4.5, 4.4, 0)),
    Part.LineSegment(Vector(4.5, 4.4, 0), Vector(-4.5, 4.4, 0)),
], False)
sketch13.addConstraint([
    Sketcher.Constraint("Coincident", 0, 2, 1, 1),
    Sketcher.Constraint("Coincident", 1, 2, 2, 1),
    Sketcher.Constraint("Coincident", 2, 2, 3, 1),
    Sketcher.Constraint("Coincident", 3, 2, 0, 1),
    Sketcher.Constraint("Vertical", 0),
    Sketcher.Constraint("Horizontal", 1),
    Sketcher.Constraint("Vertical", 2),
    Sketcher.Constraint("Horizontal", 3),
    Sketcher.Constraint("DistanceX", 1, 1, 1, 2, Q("9.1 mm")),
    Sketcher.Constraint("DistanceY", -1, 1, 2, 2, Q("4.4 mm")),
    Sketcher.Constraint("DistanceX", 0, 2, -1, 1, Q("4.55 mm")),
    Sketcher.Constraint("DistanceY", 0, 1, 0, 2, Q("2.975519 mm")),
])
sketch13.setExpression("Constraints[8]", "Params.sketch13_width")
pocket7 = body.newObject("PartDesign::Pocket", "Pocket006")
pocket7.Profile = sketch13
pocket7.setExpression("Length", "Params.pocket7_length")
pocket7.Reversed = True
doc.recompute()

fillet = body.newObject("PartDesign::Fillet", "Fillet")
fillet.Base = (pocket7, edges_at(pocket7, [(0, 5.5, -6.1)]))
fillet.setExpression("Radius", "Params.fillet_radius")

sketch14 = body.newObject("Sketcher::SketchObject", "Sketch013")
sketch14.AttachmentSupport = (doc.getObject("XZ_Plane"), [""])
sketch14.MapMode = "FlatFace"
sketch14.addGeometry([
    Part.LineSegment(Vector(-4, -3.4, 0), Vector(-4, -5.8, 0)),
    Part.LineSegment(Vector(-4, -5.8, 0), Vector(4.2, -5.8, 0)),
    Part.LineSegment(Vector(4.2, -5.8, 0), Vector(4.2, -3.4, 0)),
    Part.LineSegment(Vector(4.2, -3.4, 0), Vector(-4, -3.4, 0)),
], False)
sketch14.addConstraint([
    Sketcher.Constraint("Coincident", 0, 2, 1, 1),
    Sketcher.Constraint("Coincident", 1, 2, 2, 1),
    Sketcher.Constraint("Coincident", 2, 2, 3, 1),
    Sketcher.Constraint("Coincident", 3, 2, 0, 1),
    Sketcher.Constraint("Vertical", 0),
    Sketcher.Constraint("Horizontal", 1),
    Sketcher.Constraint("Vertical", 2),
    Sketcher.Constraint("Horizontal", 3),
    Sketcher.Constraint("DistanceX", 1, 1, 1, 2, Q("8.152516 mm")),
    Sketcher.Constraint("DistanceY", 0, 2, 0, 1, Q("2.332913 mm")),
    Sketcher.Constraint("DistanceX", -1, 1, 1, 2, Q("4.176841 mm")),
    Sketcher.Constraint("DistanceY", 2, 2, -1, 1, Q("3.44642 mm")),
])
pocket8 = body.newObject("PartDesign::Pocket", "Pocket007")
pocket8.Profile = sketch14
pocket8.setExpression("Length", "Params.pocket8_length")

sketch15 = body.newObject("Sketcher::SketchObject", "Sketch014")
sketch15.AttachmentSupport = (doc.getObject("XZ_Plane"), [""])
sketch15.MapMode = "FlatFace"
sketch15.addGeometry([
    Part.LineSegment(Vector(2.25, -3.07, 0), Vector(2.25, -3.45, 0)),
    Part.LineSegment(Vector(2.25, -3.45, 0), Vector(4, -3.45, 0)),
    Part.LineSegment(Vector(4, -3.45, 0), Vector(4, -3.07, 0)),
    Part.LineSegment(Vector(4, -3.07, 0), Vector(2.25, -3.07, 0)),
    Part.LineSegment(Vector(-3.98, -3.07, 0), Vector(-3.98, -3.45, 0)),
    Part.LineSegment(Vector(-3.98, -3.45, 0), Vector(-2.23, -3.45, 0)),
    Part.LineSegment(Vector(-2.23, -3.45, 0), Vector(-2.23, -3.07, 0)),
    Part.LineSegment(Vector(-2.23, -3.07, 0), Vector(-3.98, -3.07, 0)),
], False)
sketch15.addConstraint([
    Sketcher.Constraint("Coincident", 0, 2, 1, 1),
    Sketcher.Constraint("Coincident", 1, 2, 2, 1),
    Sketcher.Constraint("Coincident", 2, 2, 3, 1),
    Sketcher.Constraint("Coincident", 3, 2, 0, 1),
    Sketcher.Constraint("Coincident", 4, 2, 5, 1),
    Sketcher.Constraint("Coincident", 5, 2, 6, 1),
    Sketcher.Constraint("Coincident", 6, 2, 7, 1),
    Sketcher.Constraint("Coincident", 7, 2, 4, 1),
    Sketcher.Constraint("Vertical", 0),
    Sketcher.Constraint("Horizontal", 1),
    Sketcher.Constraint("Vertical", 2),
    Sketcher.Constraint("Horizontal", 3),
    Sketcher.Constraint("Vertical", 4),
    Sketcher.Constraint("Horizontal", 5),
    Sketcher.Constraint("Vertical", 6),
    Sketcher.Constraint("Horizontal", 7),
    Sketcher.Constraint("Horizontal", 1, 2, 4, 2),
    Sketcher.Constraint("Horizontal", 3, 2, 6, 2),
    Sketcher.Constraint("DistanceX", -1, 1, 1, 2, Q("4 mm")),
    Sketcher.Constraint("DistanceX", 5, 1, 5, 2, Q("1.75 mm")),
    Sketcher.Constraint("DistanceX", 1, 1, 1, 2, Q("1.745 mm")),
    Sketcher.Constraint("DistanceY", 2, 2, -1, 1, Q("3.07 mm")),
    Sketcher.Constraint("DistanceY", 0, 2, 0, 1, Q("0.37642 mm")),
    Sketcher.Constraint("DistanceX", 4, 2, -1, 1, Q("3.975674 mm")),
])
sketch15.setExpression("Constraints[19]", "Params.sketch15_width")
pocket9 = body.newObject("PartDesign::Pocket", "Pocket008")
pocket9.Profile = sketch15
pocket9.setExpression("Length", "Params.pocket9_length")

sketch16 = body.newObject("Sketcher::SketchObject", "Sketch015")
sketch16.AttachmentSupport = (doc.getObject("XZ_Plane"), [""])
sketch16.MapMode = "FlatFace"
sketch16.addGeometry([
    Part.LineSegment(Vector(4, 1.9, 0), Vector(4, -2.1, 0)),
    Part.LineSegment(Vector(4, -2.1, 0), Vector(5.5, -2.1, 0)),
    Part.LineSegment(Vector(5.5, -2.1, 0), Vector(5.5, 1.9, 0)),
    Part.LineSegment(Vector(5.5, 1.9, 0), Vector(4, 1.9, 0)),
    Part.LineSegment(Vector(-5.5, 1.9, 0), Vector(-5.5, -2.1, 0)),
    Part.LineSegment(Vector(-5.5, -2.1, 0), Vector(-4, -2.1, 0)),
    Part.LineSegment(Vector(-4, -2.1, 0), Vector(-4, 1.9, 0)),
    Part.LineSegment(Vector(-4, 1.9, 0), Vector(-5.5, 1.9, 0)),
], False)
sketch16.addConstraint([
    Sketcher.Constraint("Coincident", 0, 2, 1, 1),
    Sketcher.Constraint("Coincident", 1, 2, 2, 1),
    Sketcher.Constraint("Coincident", 2, 2, 3, 1),
    Sketcher.Constraint("Coincident", 3, 2, 0, 1),
    Sketcher.Constraint("Coincident", 4, 2, 5, 1),
    Sketcher.Constraint("Coincident", 5, 2, 6, 1),
    Sketcher.Constraint("Coincident", 6, 2, 7, 1),
    Sketcher.Constraint("Coincident", 7, 2, 4, 1),
    Sketcher.Constraint("Vertical", 0),
    Sketcher.Constraint("Horizontal", 1),
    Sketcher.Constraint("Vertical", 2),
    Sketcher.Constraint("Horizontal", 3),
    Sketcher.Constraint("Vertical", 4),
    Sketcher.Constraint("Horizontal", 5),
    Sketcher.Constraint("Vertical", 6),
    Sketcher.Constraint("Horizontal", 7),
    Sketcher.Constraint("Symmetric", 1, 2, 4, 2, -2),
    Sketcher.Constraint("Symmetric", 3, 2, 6, 2, -2),
    Sketcher.Constraint("DistanceY", 0, 2, 0, 1, Q("4 mm")),
    Sketcher.Constraint("DistanceX", 1, 1, 1, 2, Q("1.5 mm")),
    Sketcher.Constraint("DistanceX", -1, 1, 0, 2, Q("4 mm")),
    Sketcher.Constraint("DistanceY", 0, 2, -1, 1, Q("2.051196 mm")),
])
sketch16.setExpression("Constraints[18]", "Params.sketch16_height")
sketch16.setExpression("Constraints[19]", "Params.sketch16_width")
pocket10 = body.newObject("PartDesign::Pocket", "Pocket009")
pocket10.Profile = sketch16
pocket10.setExpression("Length", "Params.pocket10_length")

doc.recompute()
